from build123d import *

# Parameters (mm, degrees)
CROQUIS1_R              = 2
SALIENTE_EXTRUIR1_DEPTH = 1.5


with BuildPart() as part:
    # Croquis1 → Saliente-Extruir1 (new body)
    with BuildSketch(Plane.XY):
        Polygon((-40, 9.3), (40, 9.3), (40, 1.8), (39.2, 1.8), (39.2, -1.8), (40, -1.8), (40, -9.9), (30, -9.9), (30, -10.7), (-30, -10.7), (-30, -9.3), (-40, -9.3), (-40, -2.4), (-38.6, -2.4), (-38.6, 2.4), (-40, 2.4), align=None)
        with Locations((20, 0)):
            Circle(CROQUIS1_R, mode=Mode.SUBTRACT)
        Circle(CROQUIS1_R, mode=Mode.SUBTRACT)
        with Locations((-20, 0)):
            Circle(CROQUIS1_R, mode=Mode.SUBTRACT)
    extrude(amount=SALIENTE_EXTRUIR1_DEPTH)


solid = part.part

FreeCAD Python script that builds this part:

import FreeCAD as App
import Part
import Sketcher
Q = App.Units.Quantity

doc = App.newDocument("Part")
body = doc.addObject("PartDesign::Body", "Body")

# Sketch on XY plane
sketch1 = doc.addObject("Sketcher::SketchObject", "Sketch")
body.addObject(sketch1)
sketch1.AttachmentSupport = (doc.XY_Plane, [""])
sketch1.MapMode = "FlatFace"
sketch1.addGeometry(Part.LineSegment(App.Vector(40, 9.3, 0), App.Vector(-40, 9.3, 0)), False)
sketch1.addGeometry(Part.LineSegment(App.Vector(-40, 9.3, 0), App.Vector(-40, 2.4, 0)), False)
sketch1.addGeometry(Part.LineSegment(App.Vector(-40, 2.4, 0), App.Vector(-38.6, 2.4, 0)), False)
sketch1.addGeometry(Part.LineSegment(App.Vector(-38.6, 2.4, 0), App.Vector(-38.6, -2.4, 0)), False)
sketch1.addGeometry(Part.LineSegment(App.Vector(-38.6, -2.4, 0), App.Vector(-40, -2.4, 0)), False)
sketch1.addGeometry(Part.LineSegment(App.Vector(-40, -2.4, 0), App.Vector(-40, -9.3, 0)), False)
sketch1.addGeometry(Part.LineSegment(App.Vector(-40, -9.3, 0), App.Vector(-30, -9.3, 0)), False)
sketch1.addGeometry(Part.LineSegment(App.Vector(-30, -9.3, 0), App.Vector(-30, -10.7, 0)), False)
sketch1.addGeometry(Part.LineSegment(App.Vector(-30, -10.7, 0), App.Vector(30, -10.7, 0)), False)
sketch1.addGeometry(Part.LineSegment(App.Vector(30, -10.7, 0), App.Vector(30, -9.9, 0)), False)
sketch1.addGeometry(Part.LineSegment(App.Vector(30, -9.9, 0), App.Vector(40, -9.9, 0)), False)
sketch1.addGeometry(Part.LineSegment(App.Vector(40, -9.9, 0), App.Vector(40, -1.8, 0)), False)
sketch1.addGeometry(Part.LineSegment(App.Vector(40, -1.8, 0), App.Vector(39.2, -1.8, 0)), False)
sketch1.addGeometry(Part.LineSegment(App.Vector(39.2, -1.8, 0), App.Vector(39.2, 1.8, 0)), False)
sketch1.addGeometry(Part.LineSegment(App.Vector(39.2, 1.8, 0), App.Vector(40, 1.8, 0)), False)
sketch1.addGeometry(Part.LineSegment(App.Vector(40, 1.8, 0), App.Vector(40, 9.3, 0)), False)
sketch1.addGeometry(Part.Circle(App.Vector(20, 0, 0), App.Vector(0, 0, 1), 2), False)
sketch1.addGeometry(Part.Circle(App.Vector(0, 0, 0), App.Vector(0, 0, 1), 2), False)
sketch1.addGeometry(Part.Circle(App.Vector(-20, 0, 0), App.Vector(0, 0, 1), 2), False)
sketch1.addConstraint(Sketcher.Constraint("Coincident", 0, 2, 1, 1))
sketch1.addConstraint(Sketcher.Constraint("Coincident", 1, 2, 2, 1))
sketch1.addConstraint(Sketcher.Constraint("Coincident", 2, 2, 3, 1))
sketch1.addConstraint(Sketcher.Constraint("Coincident", 3, 2, 4, 1))
sketch1.addConstraint(Sketcher.Constraint("Coincident", 4, 2, 5, 1))
sketch1.addConstraint(Sketcher.Constraint("Coincident", 5, 2, 6, 1))
sketch1.addConstraint(Sketcher.Constraint("Coincident", 6, 2, 7, 1))
sketch1.addConstraint(Sketcher.Constraint("Coincident", 7, 2, 8, 1))
sketch1.addConstraint(Sketcher.Constraint("Coincident", 8, 2, 9, 1))
sketch1.addConstraint(Sketcher.Constraint("Coincident", 9, 2, 10, 1))
sketch1.addConstraint(Sketcher.Constraint("Coincident", 10, 2, 11, 1))
sketch1.addConstraint(Sketcher.Constraint("Coincident", 11, 2, 12, 1))
sketch1.addConstraint(Sketcher.Constraint("Coincident", 12, 2, 13, 1))
sketch1.addConstraint(Sketcher.Constraint("Coincident", 13, 2, 14, 1))
sketch1.addConstraint(Sketcher.Constraint("Coincident", 14, 2, 15, 1))
sketch1.addConstraint(Sketcher.Constraint("Coincident", 15, 2, 0, 1))
sketch1.addConstraint(Sketcher.Constraint("Horizontal", 0))
sketch1.addConstraint(Sketcher.Constraint("Vertical", 1))
sketch1.addConstraint(Sketcher.Constraint("Horizontal", 2))
sketch1.addConstraint(Sketcher.Constraint("Vertical", 3))
sketch1.addConstraint(Sketcher.Constraint("Horizontal", 4))
sketch1.addConstraint(Sketcher.Constraint("Vertical", 5))
sketch1.addConstraint(Sketcher.Constraint("Horizontal", 6))
sketch1.addConstraint(Sketcher.Constraint("Vertical", 7))
sketch1.addConstraint(Sketcher.Constraint("Horizontal", 8))
sketch1.addConstraint(Sketcher.Constraint("Vertical", 9))
sketch1.addConstraint(Sketcher.Constraint("Horizontal", 10))
sketch1.addConstraint(Sketcher.Constraint("Vertical", 11))
sketch1.addConstraint(Sketcher.Constraint("Horizontal", 12))
sketch1.addConstraint(Sketcher.Constraint("Vertical", 13))
sketch1.addConstraint(Sketcher.Constraint("Horizontal", 14))
sketch1.addConstraint(Sketcher.Constraint("Vertical", 15))
sketch1.addConstraint(Sketcher.Constraint("Coincident", 17, 3, -1, 1))
sketch1.addConstraint(Sketcher.Constraint("Equal", 16, 17))
sketch1.addConstraint(Sketcher.Constraint("Equal", 17, 18))
sketch1.addConstraint(Sketcher.Constraint("Symmetric", 16, 3, 18, 3, -1, 1))
sketch1.addConstraint(Sketcher.Constraint("Symmetric", 5, 2, 15, 2, -1, 1))
sketch1.addConstraint(Sketcher.Constraint("Symmetric", 1, 2, 4, 2, -1))
sketch1.addConstraint(Sketcher.Constraint("Symmetric", 11, 2, 14, 2, -1))
sketch1.addConstraint(Sketcher.Constraint("PointOnObject", 16, 3, -1))
sketch1.addConstraint(Sketcher.Constraint("Equal", 6, 10))
sketch1.addConstraint(Sketcher.Constraint("Equal", 4, 7))
sketch1.addConstraint(Sketcher.Constraint("Equal", 14, 9))
sketch1.addConstraint(Sketcher.Constraint("Diameter", 16, Q("4 mm")))
sketch1.addConstraint(Sketcher.Constraint("DistanceX", 0, 2, 0, 1, Q("80 mm")))
sketch1.addConstraint(Sketcher.Constraint("DistanceX", 6, 1, 6, 2, Q("10 mm")))
sketch1.addConstraint(Sketcher.Constraint("DistanceX", 2, 1, 2, 2, Q("1.4 mm")))
sketch1.addConstraint(Sketcher.Constraint("DistanceX", 12, 2, 12, 1, Q("0.8 mm")))
sketch1.addConstraint(Sketcher.Constraint("DistanceY", 1, 2, 1, 1, Q("6.9 mm")))
sketch1.addConstraint(Sketcher.Constraint("DistanceY", 3, 2, 3, 1, Q("4.8 mm")))
sketch1.addConstraint(Sketcher.Constraint("DistanceY", 11, 1, 11, 2, Q("8.1 mm")))
sketch1.addConstraint(Sketcher.Constraint("DistanceX", -1, 1, 16, 3, Q("20 mm")))
pad1 = doc.addObject("PartDesign::Pad", "Pad")
body.addObject(pad1)
pad1.Profile = sketch1
pad1.Length = 1.5

doc.recompute()
